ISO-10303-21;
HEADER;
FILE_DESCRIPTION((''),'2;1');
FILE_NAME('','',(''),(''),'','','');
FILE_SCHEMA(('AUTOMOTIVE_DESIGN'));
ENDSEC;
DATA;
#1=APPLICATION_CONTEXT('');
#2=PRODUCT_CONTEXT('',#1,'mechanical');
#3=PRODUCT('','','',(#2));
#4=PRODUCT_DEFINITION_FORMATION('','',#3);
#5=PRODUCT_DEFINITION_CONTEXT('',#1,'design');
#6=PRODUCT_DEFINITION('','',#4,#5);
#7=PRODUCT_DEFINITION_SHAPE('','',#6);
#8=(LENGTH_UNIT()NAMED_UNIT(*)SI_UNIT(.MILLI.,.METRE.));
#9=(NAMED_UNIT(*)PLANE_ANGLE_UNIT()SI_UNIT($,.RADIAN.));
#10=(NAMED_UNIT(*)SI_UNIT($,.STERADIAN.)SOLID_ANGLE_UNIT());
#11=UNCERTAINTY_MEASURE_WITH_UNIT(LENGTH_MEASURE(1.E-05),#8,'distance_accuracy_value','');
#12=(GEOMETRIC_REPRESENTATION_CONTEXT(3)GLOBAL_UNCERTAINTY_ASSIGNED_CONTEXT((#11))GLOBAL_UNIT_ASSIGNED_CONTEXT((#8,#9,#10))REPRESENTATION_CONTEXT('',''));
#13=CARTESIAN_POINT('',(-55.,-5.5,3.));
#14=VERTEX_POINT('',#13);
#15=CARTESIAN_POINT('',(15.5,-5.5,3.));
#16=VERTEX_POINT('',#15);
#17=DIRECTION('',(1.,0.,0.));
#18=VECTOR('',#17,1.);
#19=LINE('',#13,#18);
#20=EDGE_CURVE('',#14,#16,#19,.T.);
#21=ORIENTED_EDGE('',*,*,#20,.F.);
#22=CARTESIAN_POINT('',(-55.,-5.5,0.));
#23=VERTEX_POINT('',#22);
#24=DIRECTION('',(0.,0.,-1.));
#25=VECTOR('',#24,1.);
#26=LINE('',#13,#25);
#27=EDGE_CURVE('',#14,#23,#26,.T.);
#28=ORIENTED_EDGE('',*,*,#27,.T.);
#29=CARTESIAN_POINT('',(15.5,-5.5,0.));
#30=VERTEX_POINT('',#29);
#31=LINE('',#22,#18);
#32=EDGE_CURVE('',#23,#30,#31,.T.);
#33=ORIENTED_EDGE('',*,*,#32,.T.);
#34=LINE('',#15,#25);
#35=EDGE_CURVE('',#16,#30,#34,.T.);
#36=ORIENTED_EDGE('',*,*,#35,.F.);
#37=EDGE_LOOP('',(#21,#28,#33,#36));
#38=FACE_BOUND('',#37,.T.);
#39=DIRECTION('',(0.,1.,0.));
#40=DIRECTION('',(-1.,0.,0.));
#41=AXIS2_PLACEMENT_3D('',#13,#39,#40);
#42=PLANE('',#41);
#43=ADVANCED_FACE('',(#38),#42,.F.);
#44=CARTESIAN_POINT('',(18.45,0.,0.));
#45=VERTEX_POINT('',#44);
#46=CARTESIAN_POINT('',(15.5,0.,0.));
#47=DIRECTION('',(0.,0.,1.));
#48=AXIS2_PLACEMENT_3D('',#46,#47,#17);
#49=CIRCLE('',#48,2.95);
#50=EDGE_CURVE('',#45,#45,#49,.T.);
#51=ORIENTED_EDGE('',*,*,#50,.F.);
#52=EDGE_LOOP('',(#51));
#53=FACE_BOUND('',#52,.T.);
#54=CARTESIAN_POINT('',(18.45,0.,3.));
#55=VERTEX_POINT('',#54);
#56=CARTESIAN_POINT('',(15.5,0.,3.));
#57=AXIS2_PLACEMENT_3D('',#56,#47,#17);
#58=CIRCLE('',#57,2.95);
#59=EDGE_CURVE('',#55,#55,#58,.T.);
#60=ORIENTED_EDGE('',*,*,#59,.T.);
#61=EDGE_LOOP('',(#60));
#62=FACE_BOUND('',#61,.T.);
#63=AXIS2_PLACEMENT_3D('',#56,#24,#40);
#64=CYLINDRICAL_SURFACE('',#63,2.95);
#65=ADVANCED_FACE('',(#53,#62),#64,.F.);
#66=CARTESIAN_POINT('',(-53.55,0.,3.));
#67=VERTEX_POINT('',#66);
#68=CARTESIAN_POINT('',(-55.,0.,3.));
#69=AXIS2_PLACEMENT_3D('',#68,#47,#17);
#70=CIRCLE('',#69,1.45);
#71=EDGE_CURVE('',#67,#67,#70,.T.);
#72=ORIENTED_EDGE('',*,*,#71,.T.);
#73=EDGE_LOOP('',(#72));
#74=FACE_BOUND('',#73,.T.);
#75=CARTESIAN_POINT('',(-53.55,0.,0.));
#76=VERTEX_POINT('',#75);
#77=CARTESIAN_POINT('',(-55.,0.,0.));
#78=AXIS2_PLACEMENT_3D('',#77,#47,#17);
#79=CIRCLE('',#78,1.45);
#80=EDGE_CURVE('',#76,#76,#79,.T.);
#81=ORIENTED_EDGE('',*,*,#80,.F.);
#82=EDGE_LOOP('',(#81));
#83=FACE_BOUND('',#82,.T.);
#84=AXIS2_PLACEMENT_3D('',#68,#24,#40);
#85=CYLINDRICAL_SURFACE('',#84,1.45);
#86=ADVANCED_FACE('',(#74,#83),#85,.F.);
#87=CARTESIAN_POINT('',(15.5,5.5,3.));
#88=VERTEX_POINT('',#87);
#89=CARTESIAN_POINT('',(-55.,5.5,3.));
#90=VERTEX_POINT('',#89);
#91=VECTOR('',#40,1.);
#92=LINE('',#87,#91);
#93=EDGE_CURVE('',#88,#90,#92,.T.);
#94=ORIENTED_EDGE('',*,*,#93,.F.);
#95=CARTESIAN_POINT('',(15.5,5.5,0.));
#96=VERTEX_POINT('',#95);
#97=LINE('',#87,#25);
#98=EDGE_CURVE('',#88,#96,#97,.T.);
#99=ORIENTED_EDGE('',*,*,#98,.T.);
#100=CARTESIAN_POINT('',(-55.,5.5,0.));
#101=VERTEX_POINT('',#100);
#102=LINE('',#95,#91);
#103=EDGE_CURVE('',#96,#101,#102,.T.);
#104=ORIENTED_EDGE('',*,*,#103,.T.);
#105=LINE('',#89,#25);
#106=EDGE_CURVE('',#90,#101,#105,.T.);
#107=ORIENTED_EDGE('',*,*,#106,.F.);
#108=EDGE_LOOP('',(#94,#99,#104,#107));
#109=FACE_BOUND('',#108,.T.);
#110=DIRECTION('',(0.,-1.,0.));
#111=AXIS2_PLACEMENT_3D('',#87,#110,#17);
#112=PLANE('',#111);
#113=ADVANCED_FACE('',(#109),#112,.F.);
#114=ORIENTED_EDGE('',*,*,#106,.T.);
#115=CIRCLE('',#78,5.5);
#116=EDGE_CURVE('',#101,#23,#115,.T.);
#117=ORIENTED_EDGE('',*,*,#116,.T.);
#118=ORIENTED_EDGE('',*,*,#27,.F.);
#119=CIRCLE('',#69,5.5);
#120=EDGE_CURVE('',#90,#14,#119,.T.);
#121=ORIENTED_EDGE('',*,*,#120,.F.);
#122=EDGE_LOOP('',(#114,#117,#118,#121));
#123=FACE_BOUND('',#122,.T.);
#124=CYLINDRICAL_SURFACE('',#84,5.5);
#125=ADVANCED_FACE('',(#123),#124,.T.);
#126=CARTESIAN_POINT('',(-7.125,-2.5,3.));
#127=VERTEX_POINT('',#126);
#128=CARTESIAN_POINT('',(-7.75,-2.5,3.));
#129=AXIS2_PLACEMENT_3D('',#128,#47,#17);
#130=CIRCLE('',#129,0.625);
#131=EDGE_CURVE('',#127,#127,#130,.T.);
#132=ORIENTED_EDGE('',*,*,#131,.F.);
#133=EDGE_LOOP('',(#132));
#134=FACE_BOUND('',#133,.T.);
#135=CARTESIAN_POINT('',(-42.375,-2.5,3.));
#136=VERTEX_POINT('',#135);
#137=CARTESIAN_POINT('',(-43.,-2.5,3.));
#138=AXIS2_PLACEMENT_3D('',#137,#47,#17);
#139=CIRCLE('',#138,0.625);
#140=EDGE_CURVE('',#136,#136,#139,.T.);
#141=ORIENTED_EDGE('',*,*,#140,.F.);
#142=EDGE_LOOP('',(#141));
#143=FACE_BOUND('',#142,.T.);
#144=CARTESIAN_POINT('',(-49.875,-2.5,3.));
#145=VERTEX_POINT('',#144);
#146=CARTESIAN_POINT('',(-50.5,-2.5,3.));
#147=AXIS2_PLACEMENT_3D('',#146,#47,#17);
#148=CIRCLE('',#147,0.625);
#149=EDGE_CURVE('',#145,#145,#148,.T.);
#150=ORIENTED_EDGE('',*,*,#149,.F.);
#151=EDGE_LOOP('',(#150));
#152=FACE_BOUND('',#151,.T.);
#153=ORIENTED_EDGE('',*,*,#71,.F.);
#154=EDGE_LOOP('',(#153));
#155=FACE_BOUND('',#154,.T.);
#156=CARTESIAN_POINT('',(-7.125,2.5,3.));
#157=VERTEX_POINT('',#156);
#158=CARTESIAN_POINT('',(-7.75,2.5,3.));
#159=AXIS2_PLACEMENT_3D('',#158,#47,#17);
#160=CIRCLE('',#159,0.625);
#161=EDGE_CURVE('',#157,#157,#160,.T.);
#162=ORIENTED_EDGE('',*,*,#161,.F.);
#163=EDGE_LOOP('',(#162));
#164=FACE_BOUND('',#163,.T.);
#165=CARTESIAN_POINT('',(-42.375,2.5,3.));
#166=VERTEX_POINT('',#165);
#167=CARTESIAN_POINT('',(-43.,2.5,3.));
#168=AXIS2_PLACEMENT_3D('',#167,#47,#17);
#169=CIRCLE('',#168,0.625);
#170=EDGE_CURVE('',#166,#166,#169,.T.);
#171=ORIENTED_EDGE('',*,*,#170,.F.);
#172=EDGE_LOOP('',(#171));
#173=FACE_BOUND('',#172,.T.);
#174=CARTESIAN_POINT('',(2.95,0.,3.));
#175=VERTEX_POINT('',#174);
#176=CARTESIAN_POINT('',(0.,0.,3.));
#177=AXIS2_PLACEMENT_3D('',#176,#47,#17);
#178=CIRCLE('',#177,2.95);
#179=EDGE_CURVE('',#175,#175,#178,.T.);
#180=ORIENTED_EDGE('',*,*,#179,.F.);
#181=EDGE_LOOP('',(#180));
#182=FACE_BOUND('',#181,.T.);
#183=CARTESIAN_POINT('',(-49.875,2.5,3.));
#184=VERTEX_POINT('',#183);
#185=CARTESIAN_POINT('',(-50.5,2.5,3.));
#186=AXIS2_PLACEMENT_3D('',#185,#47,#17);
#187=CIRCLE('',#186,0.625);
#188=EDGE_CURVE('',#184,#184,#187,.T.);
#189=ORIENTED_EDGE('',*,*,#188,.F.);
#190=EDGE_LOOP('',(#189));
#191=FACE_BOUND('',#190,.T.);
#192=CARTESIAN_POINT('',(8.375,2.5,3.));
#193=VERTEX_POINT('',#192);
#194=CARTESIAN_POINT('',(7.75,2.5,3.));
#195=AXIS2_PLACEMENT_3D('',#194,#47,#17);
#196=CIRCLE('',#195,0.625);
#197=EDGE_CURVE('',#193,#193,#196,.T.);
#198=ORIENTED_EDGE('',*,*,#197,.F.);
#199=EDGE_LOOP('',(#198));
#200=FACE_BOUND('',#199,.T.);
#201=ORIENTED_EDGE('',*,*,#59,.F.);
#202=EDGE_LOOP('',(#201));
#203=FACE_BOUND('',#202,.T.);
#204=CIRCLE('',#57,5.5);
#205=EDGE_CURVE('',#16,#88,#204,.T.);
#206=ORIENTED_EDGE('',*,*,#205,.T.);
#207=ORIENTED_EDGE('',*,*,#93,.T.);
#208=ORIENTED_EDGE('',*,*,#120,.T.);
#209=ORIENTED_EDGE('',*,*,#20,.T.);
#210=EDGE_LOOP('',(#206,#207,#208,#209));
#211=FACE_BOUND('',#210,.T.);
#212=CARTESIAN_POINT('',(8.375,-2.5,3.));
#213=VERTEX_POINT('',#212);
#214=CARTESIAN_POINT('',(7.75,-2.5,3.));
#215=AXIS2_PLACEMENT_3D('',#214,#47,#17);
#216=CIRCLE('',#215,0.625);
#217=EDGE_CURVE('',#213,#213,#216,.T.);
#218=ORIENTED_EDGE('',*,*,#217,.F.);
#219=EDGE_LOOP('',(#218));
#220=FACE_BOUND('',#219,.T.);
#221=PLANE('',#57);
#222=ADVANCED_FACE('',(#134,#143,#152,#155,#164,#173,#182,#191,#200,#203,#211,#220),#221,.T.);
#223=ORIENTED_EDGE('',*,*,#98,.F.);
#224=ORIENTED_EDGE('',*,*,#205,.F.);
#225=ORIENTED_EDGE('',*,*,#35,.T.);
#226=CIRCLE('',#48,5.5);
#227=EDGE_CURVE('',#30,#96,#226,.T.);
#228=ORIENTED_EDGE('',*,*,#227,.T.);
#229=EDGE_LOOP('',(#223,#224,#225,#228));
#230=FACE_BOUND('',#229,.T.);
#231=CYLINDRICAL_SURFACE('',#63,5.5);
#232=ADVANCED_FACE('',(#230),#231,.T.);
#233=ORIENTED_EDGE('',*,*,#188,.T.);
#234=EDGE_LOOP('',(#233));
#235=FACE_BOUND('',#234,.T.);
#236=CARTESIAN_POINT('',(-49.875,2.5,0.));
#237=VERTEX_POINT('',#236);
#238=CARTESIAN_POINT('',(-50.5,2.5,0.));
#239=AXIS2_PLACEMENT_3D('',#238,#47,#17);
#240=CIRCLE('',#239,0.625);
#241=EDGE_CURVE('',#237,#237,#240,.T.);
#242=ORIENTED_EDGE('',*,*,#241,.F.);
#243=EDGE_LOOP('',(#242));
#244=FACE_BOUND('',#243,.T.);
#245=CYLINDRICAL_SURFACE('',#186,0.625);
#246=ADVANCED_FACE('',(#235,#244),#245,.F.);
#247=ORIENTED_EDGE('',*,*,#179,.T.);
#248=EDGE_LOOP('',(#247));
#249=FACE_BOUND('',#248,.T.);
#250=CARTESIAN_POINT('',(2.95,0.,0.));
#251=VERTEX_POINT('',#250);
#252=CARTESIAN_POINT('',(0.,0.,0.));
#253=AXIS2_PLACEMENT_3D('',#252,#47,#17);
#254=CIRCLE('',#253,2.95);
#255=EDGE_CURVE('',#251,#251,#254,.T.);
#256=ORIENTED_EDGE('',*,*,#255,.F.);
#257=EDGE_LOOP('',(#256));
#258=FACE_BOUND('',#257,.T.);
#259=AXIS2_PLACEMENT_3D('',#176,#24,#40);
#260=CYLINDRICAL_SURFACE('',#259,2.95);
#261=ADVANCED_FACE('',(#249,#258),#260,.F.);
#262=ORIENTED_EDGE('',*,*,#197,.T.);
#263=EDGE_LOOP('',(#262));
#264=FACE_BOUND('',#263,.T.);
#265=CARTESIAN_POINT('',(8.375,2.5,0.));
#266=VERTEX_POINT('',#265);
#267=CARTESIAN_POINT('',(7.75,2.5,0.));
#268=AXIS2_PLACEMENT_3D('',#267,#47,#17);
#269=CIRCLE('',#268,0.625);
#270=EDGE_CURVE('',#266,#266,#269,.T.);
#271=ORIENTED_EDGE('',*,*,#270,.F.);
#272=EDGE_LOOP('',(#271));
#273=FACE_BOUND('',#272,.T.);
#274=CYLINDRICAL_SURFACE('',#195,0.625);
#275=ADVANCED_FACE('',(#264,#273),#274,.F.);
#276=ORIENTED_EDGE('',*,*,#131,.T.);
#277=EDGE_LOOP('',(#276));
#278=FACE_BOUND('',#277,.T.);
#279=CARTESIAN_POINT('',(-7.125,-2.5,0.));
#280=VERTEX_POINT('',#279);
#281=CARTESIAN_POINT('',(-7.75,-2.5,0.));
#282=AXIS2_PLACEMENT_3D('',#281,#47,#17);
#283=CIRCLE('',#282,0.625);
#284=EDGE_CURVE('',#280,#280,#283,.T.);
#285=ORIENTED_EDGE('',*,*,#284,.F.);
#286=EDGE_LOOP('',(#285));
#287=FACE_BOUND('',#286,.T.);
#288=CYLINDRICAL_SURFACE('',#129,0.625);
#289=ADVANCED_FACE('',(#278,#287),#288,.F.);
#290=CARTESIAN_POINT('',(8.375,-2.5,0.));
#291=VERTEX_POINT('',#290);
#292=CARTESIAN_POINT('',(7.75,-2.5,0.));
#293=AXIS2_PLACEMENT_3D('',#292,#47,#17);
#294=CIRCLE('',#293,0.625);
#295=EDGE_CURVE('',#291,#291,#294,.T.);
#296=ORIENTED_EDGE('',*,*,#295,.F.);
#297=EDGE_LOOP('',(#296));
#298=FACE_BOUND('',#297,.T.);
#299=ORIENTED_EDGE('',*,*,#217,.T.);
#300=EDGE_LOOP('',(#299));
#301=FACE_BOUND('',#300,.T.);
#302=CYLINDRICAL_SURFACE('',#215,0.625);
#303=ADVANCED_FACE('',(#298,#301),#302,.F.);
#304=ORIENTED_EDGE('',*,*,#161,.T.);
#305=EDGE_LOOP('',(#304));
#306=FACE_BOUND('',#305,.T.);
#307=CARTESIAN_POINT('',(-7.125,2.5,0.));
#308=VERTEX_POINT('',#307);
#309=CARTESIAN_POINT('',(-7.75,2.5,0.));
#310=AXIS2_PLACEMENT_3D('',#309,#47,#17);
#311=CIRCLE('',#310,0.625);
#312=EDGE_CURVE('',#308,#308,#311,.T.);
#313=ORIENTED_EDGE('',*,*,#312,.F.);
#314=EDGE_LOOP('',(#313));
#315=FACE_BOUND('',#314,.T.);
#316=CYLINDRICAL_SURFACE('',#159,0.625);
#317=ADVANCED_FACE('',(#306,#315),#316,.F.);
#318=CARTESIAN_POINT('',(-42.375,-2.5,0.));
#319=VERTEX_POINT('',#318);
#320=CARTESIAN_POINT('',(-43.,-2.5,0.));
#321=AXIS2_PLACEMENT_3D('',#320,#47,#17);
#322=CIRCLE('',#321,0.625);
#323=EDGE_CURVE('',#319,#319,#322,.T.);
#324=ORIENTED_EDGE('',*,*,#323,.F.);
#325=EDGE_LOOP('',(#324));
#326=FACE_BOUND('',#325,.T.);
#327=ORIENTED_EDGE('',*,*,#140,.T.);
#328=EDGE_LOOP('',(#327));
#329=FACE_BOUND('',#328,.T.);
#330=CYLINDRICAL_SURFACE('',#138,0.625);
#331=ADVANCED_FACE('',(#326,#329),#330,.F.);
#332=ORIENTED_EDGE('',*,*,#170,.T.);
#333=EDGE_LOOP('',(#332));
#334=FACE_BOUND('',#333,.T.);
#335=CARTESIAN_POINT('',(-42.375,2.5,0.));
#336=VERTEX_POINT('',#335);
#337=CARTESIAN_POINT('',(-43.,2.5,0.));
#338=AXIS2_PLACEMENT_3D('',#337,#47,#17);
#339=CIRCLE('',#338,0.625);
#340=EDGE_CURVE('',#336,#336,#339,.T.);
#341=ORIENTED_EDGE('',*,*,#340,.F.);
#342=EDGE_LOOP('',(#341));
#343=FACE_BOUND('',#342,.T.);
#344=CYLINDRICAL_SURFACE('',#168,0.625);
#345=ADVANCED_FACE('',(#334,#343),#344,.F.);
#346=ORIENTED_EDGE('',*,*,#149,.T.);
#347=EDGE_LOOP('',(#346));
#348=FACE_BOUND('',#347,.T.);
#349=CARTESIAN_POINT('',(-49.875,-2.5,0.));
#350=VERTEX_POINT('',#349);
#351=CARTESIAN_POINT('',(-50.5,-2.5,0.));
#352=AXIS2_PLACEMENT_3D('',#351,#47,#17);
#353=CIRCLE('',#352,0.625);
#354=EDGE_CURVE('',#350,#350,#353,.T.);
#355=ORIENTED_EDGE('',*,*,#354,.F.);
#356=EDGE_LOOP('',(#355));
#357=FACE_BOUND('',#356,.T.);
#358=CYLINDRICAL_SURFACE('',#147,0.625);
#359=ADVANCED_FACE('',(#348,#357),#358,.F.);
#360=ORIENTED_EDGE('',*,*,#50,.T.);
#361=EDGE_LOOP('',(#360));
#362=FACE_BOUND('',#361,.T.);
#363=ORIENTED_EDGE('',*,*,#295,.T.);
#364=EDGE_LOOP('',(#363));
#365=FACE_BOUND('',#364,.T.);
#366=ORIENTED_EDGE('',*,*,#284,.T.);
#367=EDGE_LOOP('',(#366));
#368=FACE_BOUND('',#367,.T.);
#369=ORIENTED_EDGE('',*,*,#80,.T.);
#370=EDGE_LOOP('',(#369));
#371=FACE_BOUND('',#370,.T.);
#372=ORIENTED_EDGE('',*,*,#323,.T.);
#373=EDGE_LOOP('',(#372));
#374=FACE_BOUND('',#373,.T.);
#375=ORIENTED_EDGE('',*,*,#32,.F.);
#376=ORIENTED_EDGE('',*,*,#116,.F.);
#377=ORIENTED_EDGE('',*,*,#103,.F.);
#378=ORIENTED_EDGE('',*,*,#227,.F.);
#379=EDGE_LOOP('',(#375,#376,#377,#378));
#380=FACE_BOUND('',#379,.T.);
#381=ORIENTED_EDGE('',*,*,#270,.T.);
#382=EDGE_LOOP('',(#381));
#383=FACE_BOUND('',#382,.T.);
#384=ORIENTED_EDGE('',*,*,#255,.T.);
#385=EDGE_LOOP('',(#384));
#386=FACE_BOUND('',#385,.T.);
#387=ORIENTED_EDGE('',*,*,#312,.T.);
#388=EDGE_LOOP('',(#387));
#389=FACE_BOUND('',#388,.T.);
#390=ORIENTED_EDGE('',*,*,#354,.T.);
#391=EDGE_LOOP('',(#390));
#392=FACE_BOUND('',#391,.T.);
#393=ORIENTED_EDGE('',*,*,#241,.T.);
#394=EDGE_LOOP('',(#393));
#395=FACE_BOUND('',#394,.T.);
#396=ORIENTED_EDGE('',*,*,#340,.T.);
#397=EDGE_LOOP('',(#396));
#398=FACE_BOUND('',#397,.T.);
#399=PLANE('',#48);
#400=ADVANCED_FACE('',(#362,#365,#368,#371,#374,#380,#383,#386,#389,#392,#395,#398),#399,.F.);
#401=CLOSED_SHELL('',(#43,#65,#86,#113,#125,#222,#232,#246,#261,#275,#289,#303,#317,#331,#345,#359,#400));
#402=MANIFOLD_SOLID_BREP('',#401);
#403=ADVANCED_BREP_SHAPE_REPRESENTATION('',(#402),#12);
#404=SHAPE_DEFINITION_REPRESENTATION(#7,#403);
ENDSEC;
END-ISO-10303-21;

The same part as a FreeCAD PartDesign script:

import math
import FreeCAD as App
import Part
import Sketcher

V = App.Vector
Q = App.Units.Quantity

doc = App.newDocument("Part")
body = doc.addObject("PartDesign::Body", "Body")

sketch1 = body.newObject("Sketcher::SketchObject", "Sketch")
sketch1.AttachmentSupport = (doc.getObject("XY_Plane"), [""])
sketch1.MapMode = "FlatFace"
sketch1.addGeometry([
    Part.LineSegment(V(15.5, 5.5, 0), V(-55, 5.5, 0)),
    Part.ArcOfCircle(Part.Circle(V(-55, 0, 0), V(0, 0, 1), 5.5), math.radians(90), math.radians(270)),
    Part.LineSegment(V(-55, -5.5, 0), V(15.5, -5.5, 0)),
    Part.ArcOfCircle(Part.Circle(V(15.5, 0, 0), V(0, 0, 1), 5.5), math.radians(-90), math.radians(90)),
    Part.Circle(V(-55, 0, 0), V(0, 0, 1), 1.4),
    Part.Circle(V(0, 0, 0), V(0, 0, 1), 3),
    Part.Circle(V(15.5, 0, 0), V(0, 0, 1), 3),
], False)
sketch1.addConstraint([
    Sketcher.Constraint("Tangent", 0, 2, 1, 1),
    Sketcher.Constraint("Tangent", 1, 2, 2, 1),
    Sketcher.Constraint("Tangent", 2, 2, 3, 1),
    Sketcher.Constraint("Tangent", 3, 2, 0, 1),
    Sketcher.Constraint("Horizontal", 0),
    Sketcher.Constraint("Horizontal", 2),
    Sketcher.Constraint("Coincident", 5, 3, -1, 1),
    Sketcher.Constraint("Coincident", 4, 3, 1, 3),
    Sketcher.Constraint("Coincident", 6, 3, 3, 3),
    Sketcher.Constraint("Equal", 5, 6),
    Sketcher.Constraint("PointOnObject", 1, 3, -1),
    Sketcher.Constraint("Diameter", 4, Q("2.9 mm")),
    Sketcher.Constraint("Diameter", 5, Q("5.9 mm")),
    Sketcher.Constraint("Radius", 1, Q("5.5 mm")),
    Sketcher.Constraint("DistanceX", 0, 2, 0, 1, Q("70.5 mm")),
    Sketcher.Constraint("DistanceX", 1, 3, -1, 1, Q("55 mm")),
])
pad1 = body.newObject("PartDesign::Pad", "Pad")
pad1.Profile = sketch1
pad1.Length = 3

sketch2 = body.newObject("Sketcher::SketchObject", "Sketch001")
sketch2.AttachmentSupport = (doc.getObject("XY_Plane"), [""])
sketch2.MapMode = "FlatFace"
sketch2.AttachmentOffset = App.Placement(V(0, 0, 3), App.Rotation())
sketch2.addGeometry([
    Part.Circle(V(7.8, 2.5, 0), V(0, 0, 1), 0.6),
    Part.Circle(V(-7.8, 2.5, 0), V(0, 0, 1), 0.6),
    Part.Circle(V(-50.5, 2.5, 0), V(0, 0, 1), 0.6),
    Part.Circle(V(-43, 2.5, 0), V(0, 0, 1), 0.6),
], False)
sketch2.addConstraint([
    Sketcher.Constraint("Equal", 0, 1),
    Sketcher.Constraint("Equal", 1, 2),
    Sketcher.Constraint("Equal", 2, 3),
    Sketcher.Constraint("Symmetric", 0, 3, 1, 3, -2),
    Sketcher.Constraint("Horizontal", 1, 3, 2, 3),
    Sketcher.Constraint("Horizontal", 2, 3, 3, 3),
    Sketcher.Constraint("Diameter", 0, Q("1.25 mm")),
    Sketcher.Constraint("DistanceX", 3, 3, -1, 1, Q("43 mm")),
    Sketcher.Constraint("DistanceY", -1, 1, 0, 3, Q("2.5 mm")),
    Sketcher.Constraint("DistanceX", 2, 3, -1, 1, Q("50.5 mm")),
    Sketcher.Constraint("DistanceX", 1, 3, 0, 3, Q("15.5 mm")),
])
doc.recompute()
hole = body.newObject("PartDesign::Hole", "Hole")
hole.Profile = sketch2
hole.ThreadType = "None"
hole.Diameter = 1.25
hole.DepthType = "ThroughAll"
doc.recompute()

mirrored = body.newObject("PartDesign::Mirrored", "Mirrored")
mirrored.Originals = [hole]
mirrored.MirrorPlane = (doc.getObject("XZ_Plane"), [""])
body.Tip = mirrored

doc.recompute()
